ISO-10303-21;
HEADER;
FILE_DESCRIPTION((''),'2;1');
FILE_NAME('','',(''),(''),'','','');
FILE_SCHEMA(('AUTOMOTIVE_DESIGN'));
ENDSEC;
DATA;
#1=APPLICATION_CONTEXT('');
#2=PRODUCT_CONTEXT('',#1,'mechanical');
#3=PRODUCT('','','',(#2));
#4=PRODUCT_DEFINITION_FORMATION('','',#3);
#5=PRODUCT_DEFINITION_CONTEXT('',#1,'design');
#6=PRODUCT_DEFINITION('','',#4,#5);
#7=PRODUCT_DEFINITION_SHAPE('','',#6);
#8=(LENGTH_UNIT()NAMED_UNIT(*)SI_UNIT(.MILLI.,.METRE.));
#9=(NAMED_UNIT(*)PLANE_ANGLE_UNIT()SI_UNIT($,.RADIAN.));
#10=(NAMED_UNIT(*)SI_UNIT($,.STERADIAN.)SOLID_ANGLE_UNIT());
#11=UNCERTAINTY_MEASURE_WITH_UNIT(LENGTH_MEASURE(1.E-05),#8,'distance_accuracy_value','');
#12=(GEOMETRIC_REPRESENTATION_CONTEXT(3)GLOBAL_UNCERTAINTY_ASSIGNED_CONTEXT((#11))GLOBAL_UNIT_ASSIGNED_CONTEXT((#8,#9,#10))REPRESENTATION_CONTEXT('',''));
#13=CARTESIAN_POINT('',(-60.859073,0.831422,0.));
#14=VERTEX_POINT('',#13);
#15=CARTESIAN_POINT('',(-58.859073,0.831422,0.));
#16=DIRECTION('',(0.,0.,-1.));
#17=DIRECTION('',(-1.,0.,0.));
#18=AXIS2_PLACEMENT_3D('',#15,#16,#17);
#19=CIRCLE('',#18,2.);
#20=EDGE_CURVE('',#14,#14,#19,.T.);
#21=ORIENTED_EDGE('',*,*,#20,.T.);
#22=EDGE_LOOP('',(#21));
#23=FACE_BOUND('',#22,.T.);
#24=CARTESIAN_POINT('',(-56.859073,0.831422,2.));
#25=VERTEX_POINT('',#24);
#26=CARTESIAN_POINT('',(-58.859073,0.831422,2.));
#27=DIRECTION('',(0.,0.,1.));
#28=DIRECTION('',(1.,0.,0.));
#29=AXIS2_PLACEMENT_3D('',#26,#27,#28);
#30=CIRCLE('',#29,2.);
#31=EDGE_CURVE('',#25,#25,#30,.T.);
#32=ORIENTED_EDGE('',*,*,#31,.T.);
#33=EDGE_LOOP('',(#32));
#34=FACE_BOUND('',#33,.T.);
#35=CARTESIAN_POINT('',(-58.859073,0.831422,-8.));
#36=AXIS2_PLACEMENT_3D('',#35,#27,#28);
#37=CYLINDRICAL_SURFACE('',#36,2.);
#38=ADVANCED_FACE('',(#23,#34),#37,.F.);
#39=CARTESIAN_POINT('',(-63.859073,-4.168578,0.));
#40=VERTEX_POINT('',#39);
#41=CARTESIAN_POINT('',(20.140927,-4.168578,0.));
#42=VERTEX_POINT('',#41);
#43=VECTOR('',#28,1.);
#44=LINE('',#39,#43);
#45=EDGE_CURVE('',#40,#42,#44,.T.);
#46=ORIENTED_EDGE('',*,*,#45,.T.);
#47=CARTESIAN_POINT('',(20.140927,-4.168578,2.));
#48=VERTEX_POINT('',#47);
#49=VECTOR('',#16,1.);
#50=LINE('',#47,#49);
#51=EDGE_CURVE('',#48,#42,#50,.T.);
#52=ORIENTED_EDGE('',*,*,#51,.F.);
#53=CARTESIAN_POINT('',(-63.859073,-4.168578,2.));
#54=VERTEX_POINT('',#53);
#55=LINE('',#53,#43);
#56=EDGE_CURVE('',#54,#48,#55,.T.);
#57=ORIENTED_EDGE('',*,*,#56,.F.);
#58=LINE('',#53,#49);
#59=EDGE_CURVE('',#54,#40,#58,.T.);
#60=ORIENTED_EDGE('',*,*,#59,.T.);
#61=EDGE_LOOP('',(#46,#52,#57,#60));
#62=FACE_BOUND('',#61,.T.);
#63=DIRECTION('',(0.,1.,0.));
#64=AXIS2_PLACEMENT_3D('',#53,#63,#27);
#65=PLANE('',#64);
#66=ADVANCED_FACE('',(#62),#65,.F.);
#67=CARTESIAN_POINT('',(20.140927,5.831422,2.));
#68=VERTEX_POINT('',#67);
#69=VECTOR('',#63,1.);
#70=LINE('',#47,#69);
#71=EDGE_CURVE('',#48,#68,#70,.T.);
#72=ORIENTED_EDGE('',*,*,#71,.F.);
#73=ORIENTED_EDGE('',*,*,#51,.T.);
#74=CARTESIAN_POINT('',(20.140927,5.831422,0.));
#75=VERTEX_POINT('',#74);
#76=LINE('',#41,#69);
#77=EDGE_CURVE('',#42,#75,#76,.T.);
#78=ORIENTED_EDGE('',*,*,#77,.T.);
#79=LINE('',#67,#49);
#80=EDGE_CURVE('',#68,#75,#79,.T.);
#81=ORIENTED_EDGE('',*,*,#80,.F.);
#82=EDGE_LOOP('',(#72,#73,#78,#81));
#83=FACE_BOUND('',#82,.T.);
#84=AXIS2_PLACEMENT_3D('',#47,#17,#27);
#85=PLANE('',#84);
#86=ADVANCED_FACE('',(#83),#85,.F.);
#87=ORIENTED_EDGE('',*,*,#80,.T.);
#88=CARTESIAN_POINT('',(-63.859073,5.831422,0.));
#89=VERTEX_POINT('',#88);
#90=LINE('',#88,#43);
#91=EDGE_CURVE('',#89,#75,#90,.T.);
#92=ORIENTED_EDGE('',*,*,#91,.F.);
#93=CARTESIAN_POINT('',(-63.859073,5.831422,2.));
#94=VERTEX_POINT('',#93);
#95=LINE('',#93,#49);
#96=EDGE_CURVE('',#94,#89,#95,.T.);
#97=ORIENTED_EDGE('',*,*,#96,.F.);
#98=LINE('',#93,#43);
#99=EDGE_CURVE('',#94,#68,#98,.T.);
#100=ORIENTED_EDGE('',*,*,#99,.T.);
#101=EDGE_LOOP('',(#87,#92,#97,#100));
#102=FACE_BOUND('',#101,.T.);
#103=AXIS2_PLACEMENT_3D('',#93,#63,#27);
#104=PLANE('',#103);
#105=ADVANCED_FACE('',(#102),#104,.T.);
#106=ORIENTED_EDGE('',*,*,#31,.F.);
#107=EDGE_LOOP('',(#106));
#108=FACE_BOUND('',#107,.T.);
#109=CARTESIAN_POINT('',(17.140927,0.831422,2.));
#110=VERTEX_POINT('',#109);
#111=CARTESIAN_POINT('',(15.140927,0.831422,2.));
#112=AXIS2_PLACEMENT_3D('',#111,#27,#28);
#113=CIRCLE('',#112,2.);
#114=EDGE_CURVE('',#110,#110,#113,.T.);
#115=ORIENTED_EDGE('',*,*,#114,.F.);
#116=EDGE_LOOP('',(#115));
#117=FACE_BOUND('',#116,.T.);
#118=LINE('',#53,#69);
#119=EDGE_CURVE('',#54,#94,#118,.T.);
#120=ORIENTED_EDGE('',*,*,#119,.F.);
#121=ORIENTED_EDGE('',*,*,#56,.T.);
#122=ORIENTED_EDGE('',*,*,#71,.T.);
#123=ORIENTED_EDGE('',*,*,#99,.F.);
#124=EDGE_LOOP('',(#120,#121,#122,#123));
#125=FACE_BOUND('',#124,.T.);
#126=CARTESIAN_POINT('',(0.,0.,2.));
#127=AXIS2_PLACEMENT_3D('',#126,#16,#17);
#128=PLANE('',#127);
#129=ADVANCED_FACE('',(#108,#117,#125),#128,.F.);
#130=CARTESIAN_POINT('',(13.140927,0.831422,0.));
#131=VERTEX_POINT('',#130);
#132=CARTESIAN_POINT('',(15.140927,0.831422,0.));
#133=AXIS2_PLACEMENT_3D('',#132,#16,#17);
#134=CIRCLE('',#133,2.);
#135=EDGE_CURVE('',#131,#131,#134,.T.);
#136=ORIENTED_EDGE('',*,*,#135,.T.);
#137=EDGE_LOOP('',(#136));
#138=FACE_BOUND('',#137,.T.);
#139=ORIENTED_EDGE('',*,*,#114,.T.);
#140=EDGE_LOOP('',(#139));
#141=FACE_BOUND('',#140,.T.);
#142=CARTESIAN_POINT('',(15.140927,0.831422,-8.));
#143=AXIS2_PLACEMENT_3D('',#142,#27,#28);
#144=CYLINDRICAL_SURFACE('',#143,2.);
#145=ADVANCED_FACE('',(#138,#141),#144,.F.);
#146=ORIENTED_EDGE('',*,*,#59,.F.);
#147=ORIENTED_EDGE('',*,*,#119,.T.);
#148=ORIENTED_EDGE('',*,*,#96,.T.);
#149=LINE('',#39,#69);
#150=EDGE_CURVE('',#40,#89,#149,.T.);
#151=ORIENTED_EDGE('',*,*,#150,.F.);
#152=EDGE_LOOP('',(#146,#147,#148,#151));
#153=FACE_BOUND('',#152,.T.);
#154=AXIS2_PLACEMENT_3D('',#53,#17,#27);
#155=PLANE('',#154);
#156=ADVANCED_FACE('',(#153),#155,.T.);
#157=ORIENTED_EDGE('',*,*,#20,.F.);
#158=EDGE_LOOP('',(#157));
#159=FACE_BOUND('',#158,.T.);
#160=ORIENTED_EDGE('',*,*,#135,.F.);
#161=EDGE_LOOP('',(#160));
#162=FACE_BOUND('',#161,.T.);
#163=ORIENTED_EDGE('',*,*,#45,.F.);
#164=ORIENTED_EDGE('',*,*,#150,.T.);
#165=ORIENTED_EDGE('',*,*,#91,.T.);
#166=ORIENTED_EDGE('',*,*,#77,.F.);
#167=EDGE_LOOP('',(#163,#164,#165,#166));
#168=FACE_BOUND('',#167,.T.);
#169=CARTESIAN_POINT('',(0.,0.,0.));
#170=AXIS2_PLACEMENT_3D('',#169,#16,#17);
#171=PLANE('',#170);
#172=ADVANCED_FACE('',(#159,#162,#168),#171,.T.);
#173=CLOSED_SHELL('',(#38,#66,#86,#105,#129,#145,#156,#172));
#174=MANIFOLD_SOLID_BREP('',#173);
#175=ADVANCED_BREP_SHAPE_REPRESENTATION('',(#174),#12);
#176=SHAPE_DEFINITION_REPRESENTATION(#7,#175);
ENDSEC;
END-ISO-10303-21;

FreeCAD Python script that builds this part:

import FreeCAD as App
import Part
import Sketcher
from FreeCAD import Vector


def add_polygon(sketch, points):
    """Adds a closed chain of lines whose ends are joined by coincident constraints."""
    first, n = sketch.GeometryCount, len(points)
    for a, b in zip(points, points[1:] + points[:1]):
        sketch.addGeometry(Part.LineSegment(App.Vector(*a, 0), App.Vector(*b, 0)), False)
    for i in range(n):
        sketch.addConstraint(Sketcher.Constraint("Coincident", first + i, 2, first + (i + 1) % n, 1))

doc = App.newDocument("Part")
params = doc.addObject("Spreadsheet::Sheet", "Params")
for row, (alias, value) in enumerate([
    ("sketch1_width", "84 mm"),
    ("sketch1_height", "10 mm"),
    ("pad1_length", "2 mm"),
    ("sketch2_diameter", "4 mm"),
    ("pocket1_length", "10 mm"),
], start=1):
    params.set(f"A{row}", alias)
    params.set(f"B{row}", "=" + value)
    params.setAlias(f"B{row}", alias)

body = doc.addObject("PartDesign::Body", "Body")

# Sketch on XY plane
sketch1 = body.newObject("Sketcher::SketchObject", "Sketch")
sketch1.AttachmentSupport = (doc.getObject("XY_Plane"), [""])
sketch1.MapMode = "FlatFace"
add_polygon(sketch1, [(-64, 6), (-64, -4), (20, -4), (20, 6)])  # lines 0-3
sketch1.addConstraint([
    Sketcher.Constraint("Vertical", 0),
    Sketcher.Constraint("Horizontal", 1),
    Sketcher.Constraint("Vertical", 2),
    Sketcher.Constraint("Horizontal", 3),
    Sketcher.Constraint("DistanceX", 1, 1, 1, 2, 84.0),
    Sketcher.Constraint("DistanceY", 0, 2, 0, 1, 10.0),
    Sketcher.Constraint("DistanceY", 0, 2, -1, 1, 4.168578),
    Sketcher.Constraint("DistanceX", 0, 2, -1, 1, 63.859073),
])
sketch1.setExpression("Constraints[8]", "Params.sketch1_width")
sketch1.setExpression("Constraints[9]", "Params.sketch1_height")
pad1 = body.newObject("PartDesign::Pad", "Pad")
pad1.Profile = sketch1
pad1.setExpression("Length", "Params.pad1_length")

# Sketch on XY plane
sketch2 = body.newObject("Sketcher::SketchObject", "Sketch001")
sketch2.AttachmentSupport = (doc.getObject("XY_Plane"), [""])
sketch2.MapMode = "FlatFace"
sketch2.AttachmentOffset = App.Placement(Vector(0, 0, 2), App.Rotation())
sketch2.addGeometry([
    Part.Circle(Vector(-58.9, 0.8, 0), Vector(0, 0, 1), 2),
    Part.Circle(Vector(15.1, 0.8, 0), Vector(0, 0, 1), 2),
], False)
sketch2.addConstraint([
    Sketcher.Constraint("Equal", 0, 1),
    Sketcher.Constraint("Horizontal", 0, 3, 1, 3),
    Sketcher.Constraint("Diameter", 0, 4.0),
    Sketcher.Constraint("DistanceX", 0, 3, 1, 3, 74.0),
    Sketcher.Constraint("DistanceY", -1, 1, 0, 3, 0.831422),
    Sketcher.Constraint("DistanceX", 0, 3, -1, 1, 58.859073),
])
sketch2.setExpression("Constraints[2]", "Params.sketch2_diameter")
pocket1 = body.newObject("PartDesign::Pocket", "Pocket")
pocket1.Profile = sketch2
pocket1.setExpression("Length", "Params.pocket1_length")

doc.recompute()
